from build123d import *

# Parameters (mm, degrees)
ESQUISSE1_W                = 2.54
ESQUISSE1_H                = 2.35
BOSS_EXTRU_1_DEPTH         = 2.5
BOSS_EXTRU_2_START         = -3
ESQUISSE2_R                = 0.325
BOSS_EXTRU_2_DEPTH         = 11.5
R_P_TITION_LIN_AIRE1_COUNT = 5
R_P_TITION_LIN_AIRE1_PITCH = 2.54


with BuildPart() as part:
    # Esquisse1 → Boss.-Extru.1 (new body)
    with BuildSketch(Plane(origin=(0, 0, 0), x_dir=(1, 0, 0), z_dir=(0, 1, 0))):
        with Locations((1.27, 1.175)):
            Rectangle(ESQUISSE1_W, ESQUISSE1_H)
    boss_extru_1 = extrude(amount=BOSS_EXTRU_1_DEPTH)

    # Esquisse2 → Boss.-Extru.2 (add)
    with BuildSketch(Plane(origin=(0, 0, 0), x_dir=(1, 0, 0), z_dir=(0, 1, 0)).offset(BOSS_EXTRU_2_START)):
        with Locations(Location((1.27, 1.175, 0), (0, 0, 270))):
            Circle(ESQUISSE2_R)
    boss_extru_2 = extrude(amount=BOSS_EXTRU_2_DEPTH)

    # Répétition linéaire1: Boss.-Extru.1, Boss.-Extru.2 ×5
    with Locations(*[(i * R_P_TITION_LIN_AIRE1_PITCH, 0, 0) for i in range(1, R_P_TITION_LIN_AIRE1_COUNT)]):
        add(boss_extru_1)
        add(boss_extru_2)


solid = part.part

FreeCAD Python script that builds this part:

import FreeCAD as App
import Part
import Sketcher

V = App.Vector
Q = App.Units.Quantity

doc = App.newDocument("Part")
body = doc.addObject("PartDesign::Body", "Body")

sketch1 = body.newObject("Sketcher::SketchObject", "Sketch")
sketch1.AttachmentSupport = (doc.getObject("XZ_Plane"), [""])
sketch1.MapMode = "FlatFace"
sketch1.addGeometry([
    Part.LineSegment(V(0, -2.4, 0), V(0, 0, 0)),
    Part.LineSegment(V(0, 0, 0), V(2.5, 0, 0)),
    Part.LineSegment(V(2.5, 0, 0), V(2.5, -2.4, 0)),
    Part.LineSegment(V(2.5, -2.4, 0), V(0, -2.4, 0)),
], False)
sketch1.addConstraint([
    Sketcher.Constraint("Coincident", 0, 2, 1, 1),
    Sketcher.Constraint("Coincident", 1, 2, 2, 1),
    Sketcher.Constraint("Coincident", 2, 2, 3, 1),
    Sketcher.Constraint("Coincident", 3, 2, 0, 1),
    Sketcher.Constraint("Vertical", 0),
    Sketcher.Constraint("Horizontal", 1),
    Sketcher.Constraint("Vertical", 2),
    Sketcher.Constraint("Horizontal", 3),
    Sketcher.Constraint("Coincident", 0, 2, -1, 1),
    Sketcher.Constraint("DistanceX", 1, 1, 1, 2, Q("2.54 mm")),
    Sketcher.Constraint("DistanceY", 0, 1, 0, 2, Q("2.35 mm")),
])
pad1 = body.newObject("PartDesign::Pad", "Pad")
pad1.Profile = sketch1
pad1.Length = 2.5
pad1.Reversed = True

sketch2 = body.newObject("Sketcher::SketchObject", "Sketch001")
sketch2.AttachmentSupport = (doc.getObject("XZ_Plane"), [""])
sketch2.MapMode = "FlatFace"
sketch2.AttachmentOffset = App.Placement(V(0, 0, 3), App.Rotation())
sketch2.addGeometry(Part.Circle(V(1.27, -1.18, 0), V(0, 0, 1), 0.33), False)
sketch2.addConstraint([
    Sketcher.Constraint("Diameter", 0, Q("0.65 mm")),
    Sketcher.Constraint("DistanceX", -1, 1, 0, 3, Q("1.27 mm")),
    Sketcher.Constraint("DistanceY", 0, 3, -1, 1, Q("1.175 mm")),
])
pad2 = body.newObject("PartDesign::Pad", "Pad001")
pad2.Profile = sketch2
pad2.Length = 11.5
pad2.Reversed = True
doc.recompute()

linearpattern = body.newObject("PartDesign::LinearPattern", "LinearPattern")
linearpattern.Originals = [pad1, pad2]
linearpattern.Direction = (doc.getObject("X_Axis"), [""])
linearpattern.Mode = "offset"
linearpattern.Offset = 2.54
linearpattern.Occurrences = 5
body.Tip = linearpattern

doc.recompute()
